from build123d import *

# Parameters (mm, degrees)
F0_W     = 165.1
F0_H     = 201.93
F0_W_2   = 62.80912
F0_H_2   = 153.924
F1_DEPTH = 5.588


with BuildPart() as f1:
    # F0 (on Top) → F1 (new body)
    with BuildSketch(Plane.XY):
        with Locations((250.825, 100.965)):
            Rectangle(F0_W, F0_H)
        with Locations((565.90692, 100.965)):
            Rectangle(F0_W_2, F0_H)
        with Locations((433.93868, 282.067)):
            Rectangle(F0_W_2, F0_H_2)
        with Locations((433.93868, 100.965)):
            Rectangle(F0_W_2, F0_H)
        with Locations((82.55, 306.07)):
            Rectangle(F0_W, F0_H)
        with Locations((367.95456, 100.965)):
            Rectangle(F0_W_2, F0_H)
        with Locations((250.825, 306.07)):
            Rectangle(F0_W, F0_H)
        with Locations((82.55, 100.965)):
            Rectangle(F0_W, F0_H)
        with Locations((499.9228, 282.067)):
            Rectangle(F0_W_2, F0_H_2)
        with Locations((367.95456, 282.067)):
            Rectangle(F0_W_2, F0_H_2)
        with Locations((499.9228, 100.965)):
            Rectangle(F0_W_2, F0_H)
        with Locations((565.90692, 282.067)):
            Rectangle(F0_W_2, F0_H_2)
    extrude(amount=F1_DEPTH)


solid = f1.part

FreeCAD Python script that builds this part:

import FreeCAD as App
import Part
import Sketcher

V = App.Vector
Q = App.Units.Quantity

doc = App.newDocument("Part")
body = doc.addObject("PartDesign::Body", "Body")
body.AllowCompound = True

# Sketch on XY plane
sketch1 = body.newObject("Sketcher::SketchObject", "Sketch")
sketch1.AttachmentSupport = (doc.getObject("XY_Plane"), [""])
sketch1.MapMode = "FlatFace"
sketch1.addGeometry(Part.LineSegment(V(168, 202, 0), V(168, 0, 0)), False)
sketch1.addGeometry(Part.LineSegment(V(168, 0, 0), V(333, 0, 0)), False)
sketch1.addGeometry(Part.LineSegment(V(333, 0, 0), V(333, 202, 0)), False)
sketch1.addGeometry(Part.LineSegment(V(333, 202, 0), V(168, 202, 0)), False)
sketch1.addGeometry(Part.LineSegment(V(535, 202, 0), V(535, 0, 0)), False)
sketch1.addGeometry(Part.LineSegment(V(535, 0, 0), V(597, 0, 0)), False)
sketch1.addGeometry(Part.LineSegment(V(597, 0, 0), V(597, 202, 0)), False)
sketch1.addGeometry(Part.LineSegment(V(597, 202, 0), V(535, 202, 0)), False)
sketch1.addGeometry(Part.LineSegment(V(403, 359, 0), V(403, 205, 0)), False)
sketch1.addGeometry(Part.LineSegment(V(403, 205, 0), V(465, 205, 0)), False)
sketch1.addGeometry(Part.LineSegment(V(465, 205, 0), V(465, 359, 0)), False)
sketch1.addGeometry(Part.LineSegment(V(465, 359, 0), V(403, 359, 0)), False)
sketch1.addGeometry(Part.LineSegment(V(403, 202, 0), V(403, 0, 0)), False)
sketch1.addGeometry(Part.LineSegment(V(403, 0, 0), V(465, 0, 0)), False)
sketch1.addGeometry(Part.LineSegment(V(465, 0, 0), V(465, 202, 0)), False)
sketch1.addGeometry(Part.LineSegment(V(465, 202, 0), V(403, 202, 0)), False)
sketch1.addGeometry(Part.LineSegment(V(0, 407, 0), V(0, 205, 0)), False)
sketch1.addGeometry(Part.LineSegment(V(0, 205, 0), V(165, 205, 0)), False)
sketch1.addGeometry(Part.LineSegment(V(165, 205, 0), V(165, 407, 0)), False)
sketch1.addGeometry(Part.LineSegment(V(165, 407, 0), V(0, 407, 0)), False)
sketch1.addGeometry(Part.LineSegment(V(337, 202, 0), V(337, 0, 0)), False)
sketch1.addGeometry(Part.LineSegment(V(337, 0, 0), V(399, 0, 0)), False)
sketch1.addGeometry(Part.LineSegment(V(399, 0, 0), V(399, 202, 0)), False)
sketch1.addGeometry(Part.LineSegment(V(399, 202, 0), V(337, 202, 0)), False)
sketch1.addGeometry(Part.LineSegment(V(168, 407, 0), V(168, 205, 0)), False)
sketch1.addGeometry(Part.LineSegment(V(168, 205, 0), V(333, 205, 0)), False)
sketch1.addGeometry(Part.LineSegment(V(333, 205, 0), V(333, 407, 0)), False)
sketch1.addGeometry(Part.LineSegment(V(333, 407, 0), V(168, 407, 0)), False)
sketch1.addGeometry(Part.LineSegment(V(0, 202, 0), V(0, 0, 0)), False)
sketch1.addGeometry(Part.LineSegment(V(0, 0, 0), V(165, 0, 0)), False)
sketch1.addGeometry(Part.LineSegment(V(165, 0, 0), V(165, 202, 0)), False)
sketch1.addGeometry(Part.LineSegment(V(165, 202, 0), V(0, 202, 0)), False)
sketch1.addGeometry(Part.LineSegment(V(469, 359, 0), V(469, 205, 0)), False)
sketch1.addGeometry(Part.LineSegment(V(469, 205, 0), V(531, 205, 0)), False)
sketch1.addGeometry(Part.LineSegment(V(531, 205, 0), V(531, 359, 0)), False)
sketch1.addGeometry(Part.LineSegment(V(531, 359, 0), V(469, 359, 0)), False)
sketch1.addGeometry(Part.LineSegment(V(337, 359, 0), V(337, 205, 0)), False)
sketch1.addGeometry(Part.LineSegment(V(337, 205, 0), V(399, 205, 0)), False)
sketch1.addGeometry(Part.LineSegment(V(399, 205, 0), V(399, 359, 0)), False)
sketch1.addGeometry(Part.LineSegment(V(399, 359, 0), V(337, 359, 0)), False)
sketch1.addGeometry(Part.LineSegment(V(469, 202, 0), V(469, 0, 0)), False)
sketch1.addGeometry(Part.LineSegment(V(469, 0, 0), V(531, 0, 0)), False)
sketch1.addGeometry(Part.LineSegment(V(531, 0, 0), V(531, 202, 0)), False)
sketch1.addGeometry(Part.LineSegment(V(531, 202, 0), V(469, 202, 0)), False)
sketch1.addGeometry(Part.LineSegment(V(535, 359, 0), V(535, 205, 0)), False)
sketch1.addGeometry(Part.LineSegment(V(535, 205, 0), V(597, 205, 0)), False)
sketch1.addGeometry(Part.LineSegment(V(597, 205, 0), V(597, 359, 0)), False)
sketch1.addGeometry(Part.LineSegment(V(597, 359, 0), V(535, 359, 0)), False)
sketch1.addConstraint(Sketcher.Constraint("Coincident", 0, 2, 1, 1))
sketch1.addConstraint(Sketcher.Constraint("Coincident", 1, 2, 2, 1))
sketch1.addConstraint(Sketcher.Constraint("Coincident", 2, 2, 3, 1))
sketch1.addConstraint(Sketcher.Constraint("Coincident", 3, 2, 0, 1))
sketch1.addConstraint(Sketcher.Constraint("Coincident", 4, 2, 5, 1))
sketch1.addConstraint(Sketcher.Constraint("Coincident", 5, 2, 6, 1))
sketch1.addConstraint(Sketcher.Constraint("Coincident", 6, 2, 7, 1))
sketch1.addConstraint(Sketcher.Constraint("Coincident", 7, 2, 4, 1))
sketch1.addConstraint(Sketcher.Constraint("Coincident", 8, 2, 9, 1))
sketch1.addConstraint(Sketcher.Constraint("Coincident", 9, 2, 10, 1))
sketch1.addConstraint(Sketcher.Constraint("Coincident", 10, 2, 11, 1))
sketch1.addConstraint(Sketcher.Constraint("Coincident", 11, 2, 8, 1))
sketch1.addConstraint(Sketcher.Constraint("Coincident", 12, 2, 13, 1))
sketch1.addConstraint(Sketcher.Constraint("Coincident", 13, 2, 14, 1))
sketch1.addConstraint(Sketcher.Constraint("Coincident", 14, 2, 15, 1))
sketch1.addConstraint(Sketcher.Constraint("Coincident", 15, 2, 12, 1))
sketch1.addConstraint(Sketcher.Constraint("Coincident", 16, 2, 17, 1))
sketch1.addConstraint(Sketcher.Constraint("Coincident", 17, 2, 18, 1))
sketch1.addConstraint(Sketcher.Constraint("Coincident", 18, 2, 19, 1))
sketch1.addConstraint(Sketcher.Constraint("Coincident", 19, 2, 16, 1))
sketch1.addConstraint(Sketcher.Constraint("Coincident", 20, 2, 21, 1))
sketch1.addConstraint(Sketcher.Constraint("Coincident", 21, 2, 22, 1))
sketch1.addConstraint(Sketcher.Constraint("Coincident", 22, 2, 23, 1))
sketch1.addConstraint(Sketcher.Constraint("Coincident", 23, 2, 20, 1))
sketch1.addConstraint(Sketcher.Constraint("Coincident", 24, 2, 25, 1))
sketch1.addConstraint(Sketcher.Constraint("Coincident", 25, 2, 26, 1))
sketch1.addConstraint(Sketcher.Constraint("Coincident", 26, 2, 27, 1))
sketch1.addConstraint(Sketcher.Constraint("Coincident", 27, 2, 24, 1))
sketch1.addConstraint(Sketcher.Constraint("Coincident", 28, 2, 29, 1))
sketch1.addConstraint(Sketcher.Constraint("Coincident", 29, 2, 30, 1))
sketch1.addConstraint(Sketcher.Constraint("Coincident", 30, 2, 31, 1))
sketch1.addConstraint(Sketcher.Constraint("Coincident", 31, 2, 28, 1))
sketch1.addConstraint(Sketcher.Constraint("Coincident", 32, 2, 33, 1))
sketch1.addConstraint(Sketcher.Constraint("Coincident", 33, 2, 34, 1))
sketch1.addConstraint(Sketcher.Constraint("Coincident", 34, 2, 35, 1))
sketch1.addConstraint(Sketcher.Constraint("Coincident", 35, 2, 32, 1))
sketch1.addConstraint(Sketcher.Constraint("Coincident", 36, 2, 37, 1))
sketch1.addConstraint(Sketcher.Constraint("Coincident", 37, 2, 38, 1))
sketch1.addConstraint(Sketcher.Constraint("Coincident", 38, 2, 39, 1))
sketch1.addConstraint(Sketcher.Constraint("Coincident", 39, 2, 36, 1))
sketch1.addConstraint(Sketcher.Constraint("Coincident", 40, 2, 41, 1))
sketch1.addConstraint(Sketcher.Constraint("Coincident", 41, 2, 42, 1))
sketch1.addConstraint(Sketcher.Constraint("Coincident", 42, 2, 43, 1))
sketch1.addConstraint(Sketcher.Constraint("Coincident", 43, 2, 40, 1))
sketch1.addConstraint(Sketcher.Constraint("Coincident", 44, 2, 45, 1))
sketch1.addConstraint(Sketcher.Constraint("Coincident", 45, 2, 46, 1))
sketch1.addConstraint(Sketcher.Constraint("Coincident", 46, 2, 47, 1))
sketch1.addConstraint(Sketcher.Constraint("Coincident", 47, 2, 44, 1))
sketch1.addConstraint(Sketcher.Constraint("Vertical", 0))
sketch1.addConstraint(Sketcher.Constraint("Horizontal", 1))
sketch1.addConstraint(Sketcher.Constraint("Vertical", 2))
sketch1.addConstraint(Sketcher.Constraint("Horizontal", 3))
sketch1.addConstraint(Sketcher.Constraint("Vertical", 4))
sketch1.addConstraint(Sketcher.Constraint("Horizontal", 5))
sketch1.addConstraint(Sketcher.Constraint("Vertical", 6))
sketch1.addConstraint(Sketcher.Constraint("Horizontal", 7))
sketch1.addConstraint(Sketcher.Constraint("Vertical", 8))
sketch1.addConstraint(Sketcher.Constraint("Horizontal", 9))
sketch1.addConstraint(Sketcher.Constraint("Vertical", 10))
sketch1.addConstraint(Sketcher.Constraint("Horizontal", 11))
sketch1.addConstraint(Sketcher.Constraint("Vertical", 12))
sketch1.addConstraint(Sketcher.Constraint("Horizontal", 13))
sketch1.addConstraint(Sketcher.Constraint("Vertical", 14))
sketch1.addConstraint(Sketcher.Constraint("Horizontal", 15))
sketch1.addConstraint(Sketcher.Constraint("Vertical", 16))
sketch1.addConstraint(Sketcher.Constraint("Horizontal", 17))
sketch1.addConstraint(Sketcher.Constraint("Vertical", 18))
sketch1.addConstraint(Sketcher.Constraint("Horizontal", 19))
sketch1.addConstraint(Sketcher.Constraint("Vertical", 20))
sketch1.addConstraint(Sketcher.Constraint("Horizontal", 21))
sketch1.addConstraint(Sketcher.Constraint("Vertical", 22))
sketch1.addConstraint(Sketcher.Constraint("Horizontal", 23))
sketch1.addConstraint(Sketcher.Constraint("Vertical", 24))
sketch1.addConstraint(Sketcher.Constraint("Horizontal", 25))
sketch1.addConstraint(Sketcher.Constraint("Vertical", 26))
sketch1.addConstraint(Sketcher.Constraint("Horizontal", 27))
sketch1.addConstraint(Sketcher.Constraint("Vertical", 28))
sketch1.addConstraint(Sketcher.Constraint("Horizontal", 29))
sketch1.addConstraint(Sketcher.Constraint("Vertical", 30))
sketch1.addConstraint(Sketcher.Constraint("Horizontal", 31))
sketch1.addConstraint(Sketcher.Constraint("Vertical", 32))
sketch1.addConstraint(Sketcher.Constraint("Horizontal", 33))
sketch1.addConstraint(Sketcher.Constraint("Vertical", 34))
sketch1.addConstraint(Sketcher.Constraint("Horizontal", 35))
sketch1.addConstraint(Sketcher.Constraint("Vertical", 36))
sketch1.addConstraint(Sketcher.Constraint("Horizontal", 37))
sketch1.addConstraint(Sketcher.Constraint("Vertical", 38))
sketch1.addConstraint(Sketcher.Constraint("Horizontal", 39))
sketch1.addConstraint(Sketcher.Constraint("Vertical", 40))
sketch1.addConstraint(Sketcher.Constraint("Horizontal", 41))
sketch1.addConstraint(Sketcher.Constraint("Vertical", 42))
sketch1.addConstraint(Sketcher.Constraint("Horizontal", 43))
sketch1.addConstraint(Sketcher.Constraint("Vertical", 44))
sketch1.addConstraint(Sketcher.Constraint("Horizontal", 45))
sketch1.addConstraint(Sketcher.Constraint("Vertical", 46))
sketch1.addConstraint(Sketcher.Constraint("Horizontal", 47))
sketch1.addConstraint(Sketcher.Constraint("Coincident", 28, 2, -1, 1))
sketch1.addConstraint(Sketcher.Constraint("PointOnObject", 0, 2, -1))
sketch1.addConstraint(Sketcher.Constraint("PointOnObject", 4, 2, -1))
sketch1.addConstraint(Sketcher.Constraint("PointOnObject", 12, 2, -1))
sketch1.addConstraint(Sketcher.Constraint("PointOnObject", 16, 2, -2))
sketch1.addConstraint(Sketcher.Constraint("PointOnObject", 20, 2, -1))
sketch1.addConstraint(Sketcher.Constraint("PointOnObject", 40, 2, -1))
sketch1.addConstraint(Sketcher.Constraint("Horizontal", 3, 2, 6, 2))
sketch1.addConstraint(Sketcher.Constraint("Horizontal", 7, 2, 14, 2))
sketch1.addConstraint(Sketcher.Constraint("Horizontal", 9, 2, 16, 2))
sketch1.addConstraint(Sketcher.Constraint("Horizontal", 15, 2, 22, 2))
sketch1.addConstraint(Sketcher.Constraint("Horizontal", 17, 2, 24, 2))
sketch1.addConstraint(Sketcher.Constraint("Horizontal", 19, 2, 26, 2))
sketch1.addConstraint(Sketcher.Constraint("Horizontal", 23, 2, 30, 2))
sketch1.addConstraint(Sketcher.Constraint("Horizontal", 25, 2, 32, 2))
sketch1.addConstraint(Sketcher.Constraint("Horizontal", 11, 2, 34, 2))
sketch1.addConstraint(Sketcher.Constraint("Horizontal", 33, 2, 36, 2))
sketch1.addConstraint(Sketcher.Constraint("Horizontal", 35, 2, 38, 2))
sketch1.addConstraint(Sketcher.Constraint("Horizontal", 31, 2, 42, 2))
sketch1.addConstraint(Sketcher.Constraint("Horizontal", 37, 2, 44, 2))
sketch1.addConstraint(Sketcher.Constraint("Horizontal", 39, 2, 46, 2))
sketch1.addConstraint(Sketcher.Constraint("Vertical", 11, 2, 12, 2))
sketch1.addConstraint(Sketcher.Constraint("Vertical", 10, 2, 13, 2))
sketch1.addConstraint(Sketcher.Constraint("Vertical", 3, 2, 24, 2))
sketch1.addConstraint(Sketcher.Constraint("Vertical", 2, 2, 25, 2))
sketch1.addConstraint(Sketcher.Constraint("Vertical", 18, 2, 29, 2))
sketch1.addConstraint(Sketcher.Constraint("Vertical", 23, 2, 36, 2))
sketch1.addConstraint(Sketcher.Constraint("Vertical", 22, 2, 37, 2))
sketch1.addConstraint(Sketcher.Constraint("Vertical", 35, 2, 40, 2))
sketch1.addConstraint(Sketcher.Constraint("Vertical", 34, 2, 41, 2))
sketch1.addConstraint(Sketcher.Constraint("Vertical", 7, 2, 44, 2))
sketch1.addConstraint(Sketcher.Constraint("Vertical", 6, 2, 45, 2))
sketch1.addConstraint(Sketcher.Constraint("Equal", 7, 9))
sketch1.addConstraint(Sketcher.Constraint("Equal", 3, 17))
sketch1.addConstraint(Sketcher.Constraint("Equal", 15, 21))
sketch1.addConstraint(Sketcher.Constraint("Equal", 23, 33))
sketch1.addConstraint(Sketcher.Constraint("Equal", 14, 16))
sketch1.addConstraint(Sketcher.Constraint("DistanceX", 1, 1, 1, 2, Q("6.5 in")))
sketch1.addConstraint(Sketcher.Constraint("DistanceY", 0, 2, 0, 1, Q("7.95 in")))
sketch1.addConstraint(Sketcher.Constraint("DistanceY", 8, 2, 8, 1, Q("6.06 in")))
sketch1.addConstraint(Sketcher.Constraint("DistanceX", -1, 1, 20, 2, Q("13.25 in")))
sketch1.addConstraint(Sketcher.Constraint("DistanceX", 5, 1, 5, 2, Q("2.4728 in")))
sketch1.addConstraint(Sketcher.Constraint("DistanceX", -1, 1, 0, 2, Q("6.625 in")))
sketch1.addConstraint(Sketcher.Constraint("DistanceY", -1, 1, 8, 2, Q("8.075 in")))
sketch1.addConstraint(Sketcher.Constraint("DistanceX", 21, 2, 12, 2, Q("0.125 in")))
sketch1.addConstraint(Sketcher.Constraint("DistanceX", 9, 2, 32, 2, Q("0.125 in")))
sketch1.addConstraint(Sketcher.Constraint("DistanceX", 33, 2, 7, 2, Q("0.125 in")))
pad1 = body.newObject("PartDesign::Pad", "Pad")
pad1.Profile = sketch1
pad1.Length = Q("0.22 in")

doc.recompute()
